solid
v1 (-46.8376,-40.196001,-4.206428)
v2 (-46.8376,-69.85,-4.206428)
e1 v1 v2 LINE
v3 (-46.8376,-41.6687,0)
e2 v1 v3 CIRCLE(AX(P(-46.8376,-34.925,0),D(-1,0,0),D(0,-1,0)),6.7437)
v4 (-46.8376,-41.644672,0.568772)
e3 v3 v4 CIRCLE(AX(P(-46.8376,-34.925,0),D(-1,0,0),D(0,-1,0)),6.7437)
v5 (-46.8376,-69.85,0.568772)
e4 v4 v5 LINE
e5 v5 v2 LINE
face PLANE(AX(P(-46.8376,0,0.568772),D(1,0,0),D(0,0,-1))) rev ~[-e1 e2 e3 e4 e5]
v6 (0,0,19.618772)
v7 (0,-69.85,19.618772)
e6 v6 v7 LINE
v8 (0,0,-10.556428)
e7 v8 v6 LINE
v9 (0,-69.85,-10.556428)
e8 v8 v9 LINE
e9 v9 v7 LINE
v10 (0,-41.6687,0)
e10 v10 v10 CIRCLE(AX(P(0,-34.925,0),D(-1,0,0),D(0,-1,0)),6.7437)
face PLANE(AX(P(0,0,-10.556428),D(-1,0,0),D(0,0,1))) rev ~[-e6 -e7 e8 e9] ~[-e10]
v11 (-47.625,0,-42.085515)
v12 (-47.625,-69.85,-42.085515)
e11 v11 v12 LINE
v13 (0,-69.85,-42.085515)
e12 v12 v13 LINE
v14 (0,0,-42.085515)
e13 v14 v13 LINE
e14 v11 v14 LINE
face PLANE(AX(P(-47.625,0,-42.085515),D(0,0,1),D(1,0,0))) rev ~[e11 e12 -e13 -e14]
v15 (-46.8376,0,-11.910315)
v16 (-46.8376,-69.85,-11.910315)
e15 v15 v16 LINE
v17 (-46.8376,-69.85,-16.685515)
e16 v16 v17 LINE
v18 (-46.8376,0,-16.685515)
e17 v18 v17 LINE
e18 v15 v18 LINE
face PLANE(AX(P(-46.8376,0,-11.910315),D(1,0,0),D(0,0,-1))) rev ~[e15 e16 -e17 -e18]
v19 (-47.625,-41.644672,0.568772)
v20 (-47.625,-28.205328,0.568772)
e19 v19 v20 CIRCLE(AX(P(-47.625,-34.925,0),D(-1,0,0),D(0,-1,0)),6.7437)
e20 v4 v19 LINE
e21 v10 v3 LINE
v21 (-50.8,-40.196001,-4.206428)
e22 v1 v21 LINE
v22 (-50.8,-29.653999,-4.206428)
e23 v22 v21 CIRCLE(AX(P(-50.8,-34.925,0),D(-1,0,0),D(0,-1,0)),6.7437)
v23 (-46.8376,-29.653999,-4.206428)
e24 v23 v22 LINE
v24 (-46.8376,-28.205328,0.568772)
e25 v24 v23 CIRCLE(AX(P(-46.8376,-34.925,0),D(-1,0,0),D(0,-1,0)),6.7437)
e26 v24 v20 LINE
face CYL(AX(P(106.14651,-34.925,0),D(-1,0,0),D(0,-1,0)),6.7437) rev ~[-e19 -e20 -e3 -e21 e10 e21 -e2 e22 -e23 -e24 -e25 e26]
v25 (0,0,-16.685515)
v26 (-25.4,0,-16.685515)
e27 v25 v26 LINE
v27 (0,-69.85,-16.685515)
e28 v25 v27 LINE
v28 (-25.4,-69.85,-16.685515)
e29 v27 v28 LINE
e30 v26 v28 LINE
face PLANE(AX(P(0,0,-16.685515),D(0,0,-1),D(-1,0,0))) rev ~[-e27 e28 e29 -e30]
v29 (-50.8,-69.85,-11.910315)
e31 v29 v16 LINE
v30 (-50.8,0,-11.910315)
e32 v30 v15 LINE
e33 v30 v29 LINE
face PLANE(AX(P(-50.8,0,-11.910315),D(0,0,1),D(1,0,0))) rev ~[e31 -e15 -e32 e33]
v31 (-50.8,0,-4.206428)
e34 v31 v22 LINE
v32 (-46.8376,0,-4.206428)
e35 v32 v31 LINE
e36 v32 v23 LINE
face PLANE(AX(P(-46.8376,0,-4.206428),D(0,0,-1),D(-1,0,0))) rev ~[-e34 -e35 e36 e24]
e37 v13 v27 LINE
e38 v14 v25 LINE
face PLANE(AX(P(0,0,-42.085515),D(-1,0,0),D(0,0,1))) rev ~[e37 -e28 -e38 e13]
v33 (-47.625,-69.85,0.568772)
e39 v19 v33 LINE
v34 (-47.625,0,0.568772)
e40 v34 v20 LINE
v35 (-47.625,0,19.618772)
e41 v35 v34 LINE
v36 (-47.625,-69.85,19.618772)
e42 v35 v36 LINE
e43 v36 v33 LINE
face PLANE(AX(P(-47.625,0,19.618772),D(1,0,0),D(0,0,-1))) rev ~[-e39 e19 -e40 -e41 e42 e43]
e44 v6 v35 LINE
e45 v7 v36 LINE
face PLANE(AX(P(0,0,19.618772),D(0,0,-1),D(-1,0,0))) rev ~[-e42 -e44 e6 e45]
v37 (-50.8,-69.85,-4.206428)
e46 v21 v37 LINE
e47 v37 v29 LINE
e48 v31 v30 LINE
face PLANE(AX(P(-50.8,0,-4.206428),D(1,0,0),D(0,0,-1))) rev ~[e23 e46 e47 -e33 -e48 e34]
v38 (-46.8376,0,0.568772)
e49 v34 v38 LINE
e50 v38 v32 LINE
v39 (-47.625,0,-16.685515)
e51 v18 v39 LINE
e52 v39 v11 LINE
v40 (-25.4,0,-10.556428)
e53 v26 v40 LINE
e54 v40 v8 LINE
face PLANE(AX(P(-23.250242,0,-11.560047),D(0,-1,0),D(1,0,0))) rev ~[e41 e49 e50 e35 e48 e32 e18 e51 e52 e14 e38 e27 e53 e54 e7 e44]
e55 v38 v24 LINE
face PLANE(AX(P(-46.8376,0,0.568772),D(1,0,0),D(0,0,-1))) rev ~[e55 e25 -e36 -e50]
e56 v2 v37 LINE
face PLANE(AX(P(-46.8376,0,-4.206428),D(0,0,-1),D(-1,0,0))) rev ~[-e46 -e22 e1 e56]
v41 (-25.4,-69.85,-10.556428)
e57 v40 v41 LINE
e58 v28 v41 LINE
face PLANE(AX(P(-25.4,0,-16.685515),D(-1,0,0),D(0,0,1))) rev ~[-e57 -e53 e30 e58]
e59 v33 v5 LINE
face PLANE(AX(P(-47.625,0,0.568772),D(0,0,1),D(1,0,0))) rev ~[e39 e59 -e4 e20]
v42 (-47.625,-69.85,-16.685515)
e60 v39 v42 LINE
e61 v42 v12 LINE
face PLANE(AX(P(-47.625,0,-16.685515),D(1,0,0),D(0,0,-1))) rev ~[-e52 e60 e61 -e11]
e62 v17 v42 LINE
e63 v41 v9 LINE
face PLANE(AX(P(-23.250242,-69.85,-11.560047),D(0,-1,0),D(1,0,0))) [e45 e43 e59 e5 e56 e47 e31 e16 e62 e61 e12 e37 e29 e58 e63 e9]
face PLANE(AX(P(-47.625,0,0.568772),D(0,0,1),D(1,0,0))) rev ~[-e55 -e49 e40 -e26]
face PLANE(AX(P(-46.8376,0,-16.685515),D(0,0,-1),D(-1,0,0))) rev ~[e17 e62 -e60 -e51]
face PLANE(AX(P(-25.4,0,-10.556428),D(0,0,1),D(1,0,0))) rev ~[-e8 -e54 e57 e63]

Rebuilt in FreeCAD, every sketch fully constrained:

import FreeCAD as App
import Part
import Sketcher

V = App.Vector
Q = App.Units.Quantity


def add_polygon(sketch, points):
    """Adds a closed chain of lines whose ends are joined by coincident constraints."""
    first, n = sketch.GeometryCount, len(points)
    for a, b in zip(points, points[1:] + points[:1]):
        sketch.addGeometry(Part.LineSegment(App.Vector(*a, 0), App.Vector(*b, 0)), False)
    for i in range(n):
        sketch.addConstraint(Sketcher.Constraint("Coincident", first + i, 2, first + (i + 1) % n, 1))

doc = App.newDocument("Part")
body = doc.addObject("PartDesign::Body", "Body")

# Sketch on XZ plane
sketch1 = body.newObject("Sketcher::SketchObject", "Sketch")
sketch1.AttachmentSupport = (doc.getObject("XZ_Plane"), [""])
sketch1.MapMode = "FlatFace"
add_polygon(sketch1, [(-47.625, -16.685515), (-47.625, -42.085515), (0, -42.085515), (0, -16.685515), (-25.4, -16.685515), (-25.4, -10.556428), (0, -10.556428), (0, 19.618772), (-47.625, 19.618772), (-47.625, 0.568772), (-46.8376, 0.568772), (-46.8376, -4.206428), (-50.8, -4.206428), (-50.8, -11.910315), (-46.8376, -11.910315), (-46.8376, -16.685515)])  # lines 0-15
sketch1.addConstraint(Sketcher.Constraint("Vertical", 0))
sketch1.addConstraint(Sketcher.Constraint("Horizontal", 1))
sketch1.addConstraint(Sketcher.Constraint("Vertical", 2))
sketch1.addConstraint(Sketcher.Constraint("Horizontal", 3))
sketch1.addConstraint(Sketcher.Constraint("Vertical", 4))
sketch1.addConstraint(Sketcher.Constraint("Horizontal", 5))
sketch1.addConstraint(Sketcher.Constraint("Vertical", 6))
sketch1.addConstraint(Sketcher.Constraint("Horizontal", 7))
sketch1.addConstraint(Sketcher.Constraint("Vertical", 8))
sketch1.addConstraint(Sketcher.Constraint("Horizontal", 9))
sketch1.addConstraint(Sketcher.Constraint("Vertical", 10))
sketch1.addConstraint(Sketcher.Constraint("Horizontal", 11))
sketch1.addConstraint(Sketcher.Constraint("Vertical", 12))
sketch1.addConstraint(Sketcher.Constraint("Horizontal", 13))
sketch1.addConstraint(Sketcher.Constraint("Vertical", 14))
sketch1.addConstraint(Sketcher.Constraint("Horizontal", 15))
sketch1.addConstraint(Sketcher.Constraint("PointOnObject", 1, 2, -2))
sketch1.addConstraint(Sketcher.Constraint("PointOnObject", 5, 2, -2))
sketch1.addConstraint(Sketcher.Constraint("Horizontal", 3, 2, 14, 2))
sketch1.addConstraint(Sketcher.Constraint("Vertical", 0, 2, 7, 2))
sketch1.addConstraint(Sketcher.Constraint("Vertical", 10, 2, 13, 2))
sketch1.addConstraint(Sketcher.Constraint("Equal", 5, 0))
sketch1.addConstraint(Sketcher.Constraint("Equal", 10, 14))
sketch1.addConstraint(Sketcher.Constraint("DistanceX", 3, 2, 3, 1, Q("1 in")))
sketch1.addConstraint(Sketcher.Constraint("DistanceX", 11, 2, -1, 1, Q("2 in")))
sketch1.addConstraint(Sketcher.Constraint("DistanceY", 8, 2, 8, 1, Q("0.75 in")))
sketch1.addConstraint(Sketcher.Constraint("DistanceX", 1, 1, 1, 2, Q("1.875 in")))
sketch1.addConstraint(Sketcher.Constraint("DistanceX", 9, 1, 9, 2, Q("0.031 in")))
sketch1.addConstraint(Sketcher.Constraint("DistanceY", 6, 1, 6, 2, Q("1.188 in")))
sketch1.addConstraint(Sketcher.Constraint("DistanceY", 10, 2, 10, 1, Q("0.188 in")))
sketch1.addConstraint(Sketcher.Constraint("DistanceY", 4, 1, 4, 2, Q("6.129087 mm")))
sketch1.addConstraint(Sketcher.Constraint("DistanceY", -1, 1, 6, 2, Q("19.618772 mm")))
pad1 = body.newObject("PartDesign::Pad", "Pad")
pad1.Profile = sketch1
pad1.Length = Q("2.75 in")

# Sketch on YZ plane
sketch2 = body.newObject("Sketcher::SketchObject", "Sketch001")
sketch2.AttachmentSupport = (doc.getObject("YZ_Plane"), [""])
sketch2.MapMode = "FlatFace"
sketch2.addGeometry(Part.Circle(V(-34.925, 0, 0), V(0, 0, 1), 6.7437), False)
sketch2.addConstraint(Sketcher.Constraint("PointOnObject", 0, 3, -1))
sketch2.addConstraint(Sketcher.Constraint("Diameter", 0, Q("0.531 in")))
sketch2.addConstraint(Sketcher.Constraint("DistanceX", 0, 3, -1, 1, Q("1.375 in")))
doc.recompute()
hole = body.newObject("PartDesign::Hole", "Hole")
hole.Profile = sketch2
hole.ThreadType = "None"
hole.Diameter = Q("0.531 in")
hole.DepthType = "ThroughAll"

doc.recompute()
